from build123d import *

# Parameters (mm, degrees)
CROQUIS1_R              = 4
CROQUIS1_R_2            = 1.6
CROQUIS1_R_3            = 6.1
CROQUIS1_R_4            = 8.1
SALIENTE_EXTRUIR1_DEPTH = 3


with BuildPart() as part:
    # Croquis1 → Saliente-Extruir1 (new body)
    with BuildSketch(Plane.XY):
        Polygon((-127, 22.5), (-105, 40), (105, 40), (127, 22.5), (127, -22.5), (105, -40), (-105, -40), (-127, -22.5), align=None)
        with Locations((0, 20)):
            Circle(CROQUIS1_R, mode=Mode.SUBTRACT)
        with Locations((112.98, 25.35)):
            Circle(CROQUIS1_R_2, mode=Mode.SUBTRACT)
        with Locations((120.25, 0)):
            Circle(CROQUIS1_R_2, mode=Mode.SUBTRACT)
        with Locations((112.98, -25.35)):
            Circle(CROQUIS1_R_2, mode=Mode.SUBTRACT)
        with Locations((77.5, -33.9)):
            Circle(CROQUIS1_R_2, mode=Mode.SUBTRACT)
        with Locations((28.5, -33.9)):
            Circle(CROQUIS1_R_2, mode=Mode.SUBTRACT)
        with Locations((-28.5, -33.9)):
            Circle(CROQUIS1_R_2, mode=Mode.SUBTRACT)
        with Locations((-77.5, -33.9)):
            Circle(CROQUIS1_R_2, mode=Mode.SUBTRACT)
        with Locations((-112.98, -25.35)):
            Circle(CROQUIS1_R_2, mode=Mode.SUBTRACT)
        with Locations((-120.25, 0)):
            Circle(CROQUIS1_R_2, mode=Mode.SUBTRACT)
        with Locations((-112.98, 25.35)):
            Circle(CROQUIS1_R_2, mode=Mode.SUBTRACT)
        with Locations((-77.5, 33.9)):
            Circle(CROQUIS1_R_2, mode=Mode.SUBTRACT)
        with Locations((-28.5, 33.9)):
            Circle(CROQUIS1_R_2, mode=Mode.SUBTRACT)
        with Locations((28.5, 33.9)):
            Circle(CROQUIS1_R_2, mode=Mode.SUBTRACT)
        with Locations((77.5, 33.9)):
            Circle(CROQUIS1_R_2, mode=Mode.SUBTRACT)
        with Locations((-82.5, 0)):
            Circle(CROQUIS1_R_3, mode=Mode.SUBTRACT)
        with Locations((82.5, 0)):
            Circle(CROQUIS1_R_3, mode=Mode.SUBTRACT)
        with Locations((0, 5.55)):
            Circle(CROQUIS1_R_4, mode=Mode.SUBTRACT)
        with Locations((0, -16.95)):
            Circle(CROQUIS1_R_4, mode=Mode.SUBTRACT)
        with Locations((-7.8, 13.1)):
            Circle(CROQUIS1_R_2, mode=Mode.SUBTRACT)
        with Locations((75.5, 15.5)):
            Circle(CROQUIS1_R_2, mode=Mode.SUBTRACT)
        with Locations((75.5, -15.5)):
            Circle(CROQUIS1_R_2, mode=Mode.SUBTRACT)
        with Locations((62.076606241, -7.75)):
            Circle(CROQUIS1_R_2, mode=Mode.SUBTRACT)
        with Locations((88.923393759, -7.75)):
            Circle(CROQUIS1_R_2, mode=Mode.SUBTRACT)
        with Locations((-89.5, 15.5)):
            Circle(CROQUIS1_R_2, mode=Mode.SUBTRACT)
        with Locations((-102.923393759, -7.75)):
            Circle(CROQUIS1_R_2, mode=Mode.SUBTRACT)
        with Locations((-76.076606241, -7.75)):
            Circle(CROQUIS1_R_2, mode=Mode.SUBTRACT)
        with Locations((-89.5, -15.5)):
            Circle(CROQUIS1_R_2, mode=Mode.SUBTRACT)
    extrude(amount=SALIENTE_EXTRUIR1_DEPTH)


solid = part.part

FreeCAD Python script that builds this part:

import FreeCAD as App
import Part
import Sketcher
Q = App.Units.Quantity

doc = App.newDocument("Part")
body = doc.addObject("PartDesign::Body", "Body")

# Sketch on XY plane
sketch1 = body.newObject("Sketcher::SketchObject", "Sketch")
sketch1.AttachmentSupport = (doc.getObject("XY_Plane"), [""])
sketch1.MapMode = "FlatFace"
sketch1.addGeometry(Part.LineSegment(App.Vector(-105, 40, 0), App.Vector(-127, 22.5, 0)), False)
sketch1.addGeometry(Part.LineSegment(App.Vector(-127, 22.5, 0), App.Vector(-127, -22.5, 0)), False)
sketch1.addGeometry(Part.LineSegment(App.Vector(-127, -22.5, 0), App.Vector(-105, -40, 0)), False)
sketch1.addGeometry(Part.LineSegment(App.Vector(-105, -40, 0), App.Vector(105, -40, 0)), False)
sketch1.addGeometry(Part.LineSegment(App.Vector(105, -40, 0), App.Vector(127, -22.5, 0)), False)
sketch1.addGeometry(Part.LineSegment(App.Vector(127, -22.5, 0), App.Vector(127, 22.5, 0)), False)
sketch1.addGeometry(Part.LineSegment(App.Vector(127, 22.5, 0), App.Vector(105, 40, 0)), False)
sketch1.addGeometry(Part.LineSegment(App.Vector(105, 40, 0), App.Vector(-105, 40, 0)), False)
sketch1.addGeometry(Part.Circle(App.Vector(77.5, -33.9, 0), App.Vector(0, 0, 1), 1.6), False)
sketch1.addGeometry(Part.Circle(App.Vector(113, -25.4, 0), App.Vector(0, 0, 1), 1.6), False)
sketch1.addGeometry(Part.Circle(App.Vector(28.5, -33.9, 0), App.Vector(0, 0, 1), 1.6), False)
sketch1.addGeometry(Part.Circle(App.Vector(75.5, -15.5, 0), App.Vector(0, 0, 1), 1.6), False)
sketch1.addGeometry(Part.Circle(App.Vector(88.9, -7.8, 0), App.Vector(0, 0, 1), 1.6), False)
sketch1.addGeometry(Part.Circle(App.Vector(62.1, -7.8, 0), App.Vector(0, 0, 1), 1.6), False)
sketch1.addGeometry(Part.Circle(App.Vector(0, -16.9, 0), App.Vector(0, 0, 1), 8.1), False)
sketch1.addGeometry(Part.Circle(App.Vector(-28.5, -33.9, 0), App.Vector(0, 0, 1), 1.6), False)
sketch1.addGeometry(Part.Circle(App.Vector(-77.5, -33.9, 0), App.Vector(0, 0, 1), 1.6), False)
sketch1.addGeometry(Part.Circle(App.Vector(-113, -25.4, 0), App.Vector(0, 0, 1), 1.6), False)
sketch1.addGeometry(Part.Circle(App.Vector(-89.5, -15.5, 0), App.Vector(0, 0, 1), 1.6), False)
sketch1.addGeometry(Part.Circle(App.Vector(-76.1, -7.8, 0), App.Vector(0, 0, 1), 1.6), False)
sketch1.addGeometry(Part.Circle(App.Vector(-102.9, -7.8, 0), App.Vector(0, 0, 1), 1.6), False)
sketch1.addGeometry(Part.Circle(App.Vector(120.2, 0, 0), App.Vector(0, 0, 1), 1.6), False)
sketch1.addGeometry(Part.Circle(App.Vector(82.5, 0, 0), App.Vector(0, 0, 1), 6.1), False)
sketch1.addGeometry(Part.Circle(App.Vector(75.5, 15.5, 0), App.Vector(0, 0, 1), 1.6), False)
sketch1.addGeometry(Part.Circle(App.Vector(0, 5.5, 0), App.Vector(0, 0, 1), 8.1), False)
sketch1.addGeometry(Part.Circle(App.Vector(113, 25.4, 0), App.Vector(0, 0, 1), 1.6), False)
sketch1.addGeometry(Part.Circle(App.Vector(77.5, 33.9, 0), App.Vector(0, 0, 1), 1.6), False)
sketch1.addGeometry(Part.Circle(App.Vector(0, 20, 0), App.Vector(0, 0, 1), 4), False)
sketch1.addGeometry(Part.Circle(App.Vector(28.5, 33.9, 0), App.Vector(0, 0, 1), 1.6), False)
sketch1.addGeometry(Part.Circle(App.Vector(-7.8, 13.1, 0), App.Vector(0, 0, 1), 1.6), False)
sketch1.addGeometry(Part.Circle(App.Vector(-82.5, 0, 0), App.Vector(0, 0, 1), 6.1), False)
sketch1.addGeometry(Part.Circle(App.Vector(-120.2, 0, 0), App.Vector(0, 0, 1), 1.6), False)
sketch1.addGeometry(Part.Circle(App.Vector(-89.5, 15.5, 0), App.Vector(0, 0, 1), 1.6), False)
sketch1.addGeometry(Part.Circle(App.Vector(-28.5, 33.9, 0), App.Vector(0, 0, 1), 1.6), False)
sketch1.addGeometry(Part.Circle(App.Vector(-113, 25.4, 0), App.Vector(0, 0, 1), 1.6), False)
sketch1.addGeometry(Part.Circle(App.Vector(-77.5, 33.9, 0), App.Vector(0, 0, 1), 1.6), False)
sketch1.addConstraint(Sketcher.Constraint("Coincident", 0, 2, 1, 1))
sketch1.addConstraint(Sketcher.Constraint("Coincident", 1, 2, 2, 1))
sketch1.addConstraint(Sketcher.Constraint("Coincident", 2, 2, 3, 1))
sketch1.addConstraint(Sketcher.Constraint("Coincident", 3, 2, 4, 1))
sketch1.addConstraint(Sketcher.Constraint("Coincident", 4, 2, 5, 1))
sketch1.addConstraint(Sketcher.Constraint("Coincident", 5, 2, 6, 1))
sketch1.addConstraint(Sketcher.Constraint("Coincident", 6, 2, 7, 1))
sketch1.addConstraint(Sketcher.Constraint("Coincident", 7, 2, 0, 1))
sketch1.addConstraint(Sketcher.Constraint("Vertical", 1))
sketch1.addConstraint(Sketcher.Constraint("Horizontal", 3))
sketch1.addConstraint(Sketcher.Constraint("Vertical", 5))
sketch1.addConstraint(Sketcher.Constraint("Horizontal", 7))
sketch1.addConstraint(Sketcher.Constraint("Equal", 8, 9))
sketch1.addConstraint(Sketcher.Constraint("Equal", 9, 10))
sketch1.addConstraint(Sketcher.Constraint("Equal", 10, 11))
sketch1.addConstraint(Sketcher.Constraint("Equal", 11, 12))
sketch1.addConstraint(Sketcher.Constraint("Equal", 12, 13))
sketch1.addConstraint(Sketcher.Constraint("Equal", 13, 15))
sketch1.addConstraint(Sketcher.Constraint("Equal", 15, 16))
sketch1.addConstraint(Sketcher.Constraint("Equal", 16, 17))
sketch1.addConstraint(Sketcher.Constraint("Equal", 17, 18))
sketch1.addConstraint(Sketcher.Constraint("Equal", 18, 19))
sketch1.addConstraint(Sketcher.Constraint("Equal", 19, 20))
sketch1.addConstraint(Sketcher.Constraint("Equal", 20, 21))
sketch1.addConstraint(Sketcher.Constraint("Equal", 21, 23))
sketch1.addConstraint(Sketcher.Constraint("Equal", 14, 24))
sketch1.addConstraint(Sketcher.Constraint("Equal", 23, 25))
sketch1.addConstraint(Sketcher.Constraint("Equal", 25, 26))
sketch1.addConstraint(Sketcher.Constraint("Equal", 26, 28))
sketch1.addConstraint(Sketcher.Constraint("Equal", 28, 29))
sketch1.addConstraint(Sketcher.Constraint("Equal", 22, 30))
sketch1.addConstraint(Sketcher.Constraint("Equal", 29, 31))
sketch1.addConstraint(Sketcher.Constraint("Equal", 31, 32))
sketch1.addConstraint(Sketcher.Constraint("Equal", 32, 33))
sketch1.addConstraint(Sketcher.Constraint("Equal", 33, 34))
sketch1.addConstraint(Sketcher.Constraint("Equal", 34, 35))
sketch1.addConstraint(Sketcher.Constraint("Symmetric", 17, 3, 25, 3, -1, 1))
sketch1.addConstraint(Sketcher.Constraint("Symmetric", 16, 3, 26, 3, -1, 1))
sketch1.addConstraint(Sketcher.Constraint("Symmetric", 15, 3, 28, 3, -1, 1))
sketch1.addConstraint(Sketcher.Constraint("Symmetric", 22, 3, 30, 3, -1, 1))
sketch1.addConstraint(Sketcher.Constraint("Symmetric", 21, 3, 31, 3, -1, 1))
sketch1.addConstraint(Sketcher.Constraint("Symmetric", 10, 3, 33, 3, -1, 1))
sketch1.addConstraint(Sketcher.Constraint("Symmetric", 9, 3, 34, 3, -1, 1))
sketch1.addConstraint(Sketcher.Constraint("Symmetric", 8, 3, 35, 3, -1, 1))
sketch1.addConstraint(Sketcher.Constraint("Symmetric", 0, 2, 4, 2, -1, 1))
sketch1.addConstraint(Sketcher.Constraint("Symmetric", 2, 2, 6, 2, -1, 1))
sketch1.addConstraint(Sketcher.Constraint("Symmetric", 10, 3, 15, 3, -2))
sketch1.addConstraint(Sketcher.Constraint("Symmetric", 8, 3, 16, 3, -2))
sketch1.addConstraint(Sketcher.Constraint("Symmetric", 9, 3, 17, 3, -2))
sketch1.addConstraint(Sketcher.Constraint("Symmetric", 11, 3, 23, 3, -1))
sketch1.addConstraint(Sketcher.Constraint("Symmetric", 18, 3, 32, 3, -1))
sketch1.addConstraint(Sketcher.Constraint("PointOnObject", 14, 3, -2))
sketch1.addConstraint(Sketcher.Constraint("PointOnObject", 21, 3, -1))
sketch1.addConstraint(Sketcher.Constraint("PointOnObject", 22, 3, -1))
sketch1.addConstraint(Sketcher.Constraint("PointOnObject", 24, 3, -2))
sketch1.addConstraint(Sketcher.Constraint("PointOnObject", 27, 3, -2))
sketch1.addConstraint(Sketcher.Constraint("Parallel", 0, 4))
sketch1.addConstraint(Sketcher.Constraint("Parallel", 2, 6))
sketch1.addConstraint(Sketcher.Constraint("Horizontal", 8, 3, 10, 3))
sketch1.addConstraint(Sketcher.Constraint("Horizontal", 12, 3, 13, 3))
sketch1.addConstraint(Sketcher.Constraint("Horizontal", 11, 3, 18, 3))
sketch1.addConstraint(Sketcher.Constraint("Horizontal", 13, 3, 19, 3))
sketch1.addConstraint(Sketcher.Constraint("Horizontal", 19, 3, 20, 3))
sketch1.addConstraint(Sketcher.Constraint("Horizontal", 1, 2, 4, 2))
sketch1.addConstraint(Sketcher.Constraint("Vertical", 3, 2, 6, 2))
sketch1.addConstraint(Sketcher.Constraint("Diameter", 27, Q("8 mm")))
sketch1.addConstraint(Sketcher.Constraint("Diameter", 8, Q("3.2 mm")))
sketch1.addConstraint(Sketcher.Constraint("Diameter", 14, Q("16.2 mm")))
sketch1.addConstraint(Sketcher.Constraint("Diameter", 22, Q("12.2 mm")))
sketch1.addConstraint(Sketcher.Constraint("DistanceX", 3, 1, 3, 2, Q("210 mm")))
sketch1.addConstraint(Sketcher.Constraint("DistanceY", 1, 2, 1, 1, Q("45 mm")))
sketch1.addConstraint(Sketcher.Constraint("DistanceY", -1, 1, 27, 3, Q("20 mm")))
sketch1.addConstraint(Sketcher.Constraint("DistanceX", 0, 2, -1, 1, Q("127 mm")))
sketch1.addConstraint(Sketcher.Constraint("DistanceY", 2, 2, -1, 1, Q("40 mm")))
sketch1.addConstraint(Sketcher.Constraint("DistanceX", 10, 3, 8, 3, Q("49 mm")))
sketch1.addConstraint(Sketcher.Constraint("DistanceX", 11, 3, 8, 3, Q("2 mm")))
sketch1.addConstraint(Sketcher.Constraint("DistanceX", 15, 3, 10, 3, Q("57 mm")))
sketch1.addConstraint(Sketcher.Constraint("DistanceX", 18, 3, 16, 3, Q("12 mm")))
sketch1.addConstraint(Sketcher.Constraint("DistanceX", 11, 3, 22, 3, Q("7 mm")))
sketch1.addConstraint(Sketcher.Constraint("DistanceY", 11, 3, 23, 3, Q("31 mm")))
sketch1.addConstraint(Sketcher.Constraint("DistanceY", 15, 3, 29, 3, Q("47 mm")))
sketch1.addConstraint(Sketcher.Constraint("DistanceY", 8, 3, -1, 1, Q("33.9 mm")))
sketch1.addConstraint(Sketcher.Constraint("DistanceX", 29, 3, -1, 1, Q("7.8 mm")))
sketch1.addConstraint(Sketcher.Constraint("DistanceY", 9, 3, 12, 3, Q("17.6 mm")))
sketch1.addConstraint(Sketcher.Constraint("DistanceY", 14, 3, 13, 3, Q("9.2 mm")))
sketch1.addConstraint(Sketcher.Constraint("DistanceY", 14, 3, 24, 3, Q("22.5 mm")))
sketch1.addConstraint(Sketcher.Constraint("DistanceY", 12, 3, 25, 3, Q("33.1 mm")))
sketch1.addConstraint(Sketcher.Constraint("DistanceX", -1, 1, 9, 3, Q("112.98 mm")))
sketch1.addConstraint(Sketcher.Constraint("DistanceX", -1, 1, 21, 3, Q("120.25 mm")))
sketch1.addConstraint(Sketcher.Constraint("DistanceX", -1, 1, 12, 3, Q("88.923394 mm")))
sketch1.addConstraint(Sketcher.Constraint("DistanceX", -1, 1, 13, 3, Q("62.076606 mm")))
sketch1.addConstraint(Sketcher.Constraint("DistanceX", 19, 3, -1, 1, Q("76.076606 mm")))
sketch1.addConstraint(Sketcher.Constraint("DistanceX", 20, 3, -1, 1, Q("102.923394 mm")))
pad1 = body.newObject("PartDesign::Pad", "Pad")
pad1.Profile = sketch1
pad1.Length = 3

doc.recompute()
